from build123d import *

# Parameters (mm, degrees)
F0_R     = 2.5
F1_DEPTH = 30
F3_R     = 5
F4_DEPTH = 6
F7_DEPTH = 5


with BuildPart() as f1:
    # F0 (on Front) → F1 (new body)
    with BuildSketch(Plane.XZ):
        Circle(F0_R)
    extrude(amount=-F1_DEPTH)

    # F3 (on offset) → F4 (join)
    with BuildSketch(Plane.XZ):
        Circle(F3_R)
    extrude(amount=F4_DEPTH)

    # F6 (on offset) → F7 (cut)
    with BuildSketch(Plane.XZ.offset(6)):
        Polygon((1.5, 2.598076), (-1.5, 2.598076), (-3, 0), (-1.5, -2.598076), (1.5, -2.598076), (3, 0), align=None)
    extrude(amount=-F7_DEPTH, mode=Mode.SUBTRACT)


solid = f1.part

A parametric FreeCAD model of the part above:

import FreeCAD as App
import Part
import Sketcher
Q = App.Units.Quantity

doc = App.newDocument("Part")
params = doc.addObject("Spreadsheet::Sheet", "Params")
for row, (alias, value) in enumerate([
    ("sketch1_diameter", "5 mm"),
    ("pad1_length", "30 mm"),
    ("sketch2_diameter", "10 mm"),
    ("pad2_length", "6 mm"),
    ("sketch3_width", "3 mm"),
    ("sketch3_length", "3 mm"),
    ("pocket1_length", "5 mm"),
], start=1):
    params.set(f"A{row}", alias)
    params.set(f"B{row}", "=" + value)
    params.setAlias(f"B{row}", alias)

body = doc.addObject("PartDesign::Body", "Body")

# Sketch on XZ plane
sketch1 = doc.addObject("Sketcher::SketchObject", "Sketch")
body.addObject(sketch1)
sketch1.AttachmentSupport = (doc.XZ_Plane, [""])
sketch1.MapMode = "FlatFace"
sketch1.addGeometry(Part.Circle(App.Vector(0, 0, 0), App.Vector(0, 0, 1), 2.5), False)
sketch1.addConstraint(Sketcher.Constraint("Coincident", 0, 3, -1, 1))
sketch1.addConstraint(Sketcher.Constraint("Diameter", 0, 5.0))
sketch1.setExpression("Constraints[1]", "Params.sketch1_diameter")
pad1 = doc.addObject("PartDesign::Pad", "Pad")
body.addObject(pad1)
pad1.Profile = sketch1
pad1.setExpression("Length", "Params.pad1_length")
pad1.Reversed = True

# Sketch on XZ plane
sketch2 = doc.addObject("Sketcher::SketchObject", "Sketch001")
body.addObject(sketch2)
sketch2.AttachmentSupport = (doc.XZ_Plane, [""])
sketch2.MapMode = "FlatFace"
sketch2.addGeometry(Part.Circle(App.Vector(0, 0, 0), App.Vector(0, 0, 1), 5), False)
sketch2.addConstraint(Sketcher.Constraint("Coincident", 0, 3, -1, 1))
sketch2.addConstraint(Sketcher.Constraint("Diameter", 0, 10.0))
sketch2.setExpression("Constraints[1]", "Params.sketch2_diameter")
pad2 = doc.addObject("PartDesign::Pad", "Pad001")
body.addObject(pad2)
pad2.Profile = sketch2
pad2.setExpression("Length", "Params.pad2_length")

# Sketch on XZ plane
sketch3 = doc.addObject("Sketcher::SketchObject", "Sketch002")
body.addObject(sketch3)
sketch3.AttachmentSupport = (doc.XZ_Plane, [""])
sketch3.MapMode = "FlatFace"
sketch3.AttachmentOffset = App.Placement(App.Vector(0, 0, 6), App.Rotation())
sketch3.addGeometry(Part.LineSegment(App.Vector(1.5, 2.6, 0), App.Vector(-1.5, 2.6, 0)), False)
sketch3.addGeometry(Part.LineSegment(App.Vector(-1.5, 2.6, 0), App.Vector(-3, 0, 0)), False)
sketch3.addGeometry(Part.LineSegment(App.Vector(-3, 0, 0), App.Vector(-1.5, -2.6, 0)), False)
sketch3.addGeometry(Part.LineSegment(App.Vector(-1.5, -2.6, 0), App.Vector(1.5, -2.6, 0)), False)
sketch3.addGeometry(Part.LineSegment(App.Vector(1.5, -2.6, 0), App.Vector(3, 0, 0)), False)
sketch3.addGeometry(Part.LineSegment(App.Vector(3, 0, 0), App.Vector(1.5, 2.6, 0)), False)
sketch3.addConstraint(Sketcher.Constraint("Coincident", 0, 2, 1, 1))
sketch3.addConstraint(Sketcher.Constraint("Coincident", 1, 2, 2, 1))
sketch3.addConstraint(Sketcher.Constraint("Coincident", 2, 2, 3, 1))
sketch3.addConstraint(Sketcher.Constraint("Coincident", 3, 2, 4, 1))
sketch3.addConstraint(Sketcher.Constraint("Coincident", 4, 2, 5, 1))
sketch3.addConstraint(Sketcher.Constraint("Coincident", 5, 2, 0, 1))
sketch3.addConstraint(Sketcher.Constraint("Horizontal", 0))
sketch3.addConstraint(Sketcher.Constraint("Horizontal", 3))
sketch3.addConstraint(Sketcher.Constraint("Symmetric", 0, 2, 3, 2, -1, 1))
sketch3.addConstraint(Sketcher.Constraint("Symmetric", 1, 2, 4, 2, -1, 1))
sketch3.addConstraint(Sketcher.Constraint("PointOnObject", 1, 2, -1))
sketch3.addConstraint(Sketcher.Constraint("Parallel", 2, 5))
sketch3.addConstraint(Sketcher.Constraint("Vertical", 0, 2, 2, 2))
sketch3.addConstraint(Sketcher.Constraint("DistanceX", 0, 2, 0, 1, 3.0))
sketch3.addConstraint(Sketcher.Constraint("Angle", 1, Q("-120.000002 deg")))
sketch3.addConstraint(Sketcher.Constraint("Distance", 1, 3.0))
sketch3.setExpression("Constraints[13]", "Params.sketch3_width")
sketch3.setExpression("Constraints[15]", "Params.sketch3_length")
pocket1 = doc.addObject("PartDesign::Pocket", "Pocket")
body.addObject(pocket1)
pocket1.Profile = sketch3
pocket1.setExpression("Length", "Params.pocket1_length")

doc.recompute()
